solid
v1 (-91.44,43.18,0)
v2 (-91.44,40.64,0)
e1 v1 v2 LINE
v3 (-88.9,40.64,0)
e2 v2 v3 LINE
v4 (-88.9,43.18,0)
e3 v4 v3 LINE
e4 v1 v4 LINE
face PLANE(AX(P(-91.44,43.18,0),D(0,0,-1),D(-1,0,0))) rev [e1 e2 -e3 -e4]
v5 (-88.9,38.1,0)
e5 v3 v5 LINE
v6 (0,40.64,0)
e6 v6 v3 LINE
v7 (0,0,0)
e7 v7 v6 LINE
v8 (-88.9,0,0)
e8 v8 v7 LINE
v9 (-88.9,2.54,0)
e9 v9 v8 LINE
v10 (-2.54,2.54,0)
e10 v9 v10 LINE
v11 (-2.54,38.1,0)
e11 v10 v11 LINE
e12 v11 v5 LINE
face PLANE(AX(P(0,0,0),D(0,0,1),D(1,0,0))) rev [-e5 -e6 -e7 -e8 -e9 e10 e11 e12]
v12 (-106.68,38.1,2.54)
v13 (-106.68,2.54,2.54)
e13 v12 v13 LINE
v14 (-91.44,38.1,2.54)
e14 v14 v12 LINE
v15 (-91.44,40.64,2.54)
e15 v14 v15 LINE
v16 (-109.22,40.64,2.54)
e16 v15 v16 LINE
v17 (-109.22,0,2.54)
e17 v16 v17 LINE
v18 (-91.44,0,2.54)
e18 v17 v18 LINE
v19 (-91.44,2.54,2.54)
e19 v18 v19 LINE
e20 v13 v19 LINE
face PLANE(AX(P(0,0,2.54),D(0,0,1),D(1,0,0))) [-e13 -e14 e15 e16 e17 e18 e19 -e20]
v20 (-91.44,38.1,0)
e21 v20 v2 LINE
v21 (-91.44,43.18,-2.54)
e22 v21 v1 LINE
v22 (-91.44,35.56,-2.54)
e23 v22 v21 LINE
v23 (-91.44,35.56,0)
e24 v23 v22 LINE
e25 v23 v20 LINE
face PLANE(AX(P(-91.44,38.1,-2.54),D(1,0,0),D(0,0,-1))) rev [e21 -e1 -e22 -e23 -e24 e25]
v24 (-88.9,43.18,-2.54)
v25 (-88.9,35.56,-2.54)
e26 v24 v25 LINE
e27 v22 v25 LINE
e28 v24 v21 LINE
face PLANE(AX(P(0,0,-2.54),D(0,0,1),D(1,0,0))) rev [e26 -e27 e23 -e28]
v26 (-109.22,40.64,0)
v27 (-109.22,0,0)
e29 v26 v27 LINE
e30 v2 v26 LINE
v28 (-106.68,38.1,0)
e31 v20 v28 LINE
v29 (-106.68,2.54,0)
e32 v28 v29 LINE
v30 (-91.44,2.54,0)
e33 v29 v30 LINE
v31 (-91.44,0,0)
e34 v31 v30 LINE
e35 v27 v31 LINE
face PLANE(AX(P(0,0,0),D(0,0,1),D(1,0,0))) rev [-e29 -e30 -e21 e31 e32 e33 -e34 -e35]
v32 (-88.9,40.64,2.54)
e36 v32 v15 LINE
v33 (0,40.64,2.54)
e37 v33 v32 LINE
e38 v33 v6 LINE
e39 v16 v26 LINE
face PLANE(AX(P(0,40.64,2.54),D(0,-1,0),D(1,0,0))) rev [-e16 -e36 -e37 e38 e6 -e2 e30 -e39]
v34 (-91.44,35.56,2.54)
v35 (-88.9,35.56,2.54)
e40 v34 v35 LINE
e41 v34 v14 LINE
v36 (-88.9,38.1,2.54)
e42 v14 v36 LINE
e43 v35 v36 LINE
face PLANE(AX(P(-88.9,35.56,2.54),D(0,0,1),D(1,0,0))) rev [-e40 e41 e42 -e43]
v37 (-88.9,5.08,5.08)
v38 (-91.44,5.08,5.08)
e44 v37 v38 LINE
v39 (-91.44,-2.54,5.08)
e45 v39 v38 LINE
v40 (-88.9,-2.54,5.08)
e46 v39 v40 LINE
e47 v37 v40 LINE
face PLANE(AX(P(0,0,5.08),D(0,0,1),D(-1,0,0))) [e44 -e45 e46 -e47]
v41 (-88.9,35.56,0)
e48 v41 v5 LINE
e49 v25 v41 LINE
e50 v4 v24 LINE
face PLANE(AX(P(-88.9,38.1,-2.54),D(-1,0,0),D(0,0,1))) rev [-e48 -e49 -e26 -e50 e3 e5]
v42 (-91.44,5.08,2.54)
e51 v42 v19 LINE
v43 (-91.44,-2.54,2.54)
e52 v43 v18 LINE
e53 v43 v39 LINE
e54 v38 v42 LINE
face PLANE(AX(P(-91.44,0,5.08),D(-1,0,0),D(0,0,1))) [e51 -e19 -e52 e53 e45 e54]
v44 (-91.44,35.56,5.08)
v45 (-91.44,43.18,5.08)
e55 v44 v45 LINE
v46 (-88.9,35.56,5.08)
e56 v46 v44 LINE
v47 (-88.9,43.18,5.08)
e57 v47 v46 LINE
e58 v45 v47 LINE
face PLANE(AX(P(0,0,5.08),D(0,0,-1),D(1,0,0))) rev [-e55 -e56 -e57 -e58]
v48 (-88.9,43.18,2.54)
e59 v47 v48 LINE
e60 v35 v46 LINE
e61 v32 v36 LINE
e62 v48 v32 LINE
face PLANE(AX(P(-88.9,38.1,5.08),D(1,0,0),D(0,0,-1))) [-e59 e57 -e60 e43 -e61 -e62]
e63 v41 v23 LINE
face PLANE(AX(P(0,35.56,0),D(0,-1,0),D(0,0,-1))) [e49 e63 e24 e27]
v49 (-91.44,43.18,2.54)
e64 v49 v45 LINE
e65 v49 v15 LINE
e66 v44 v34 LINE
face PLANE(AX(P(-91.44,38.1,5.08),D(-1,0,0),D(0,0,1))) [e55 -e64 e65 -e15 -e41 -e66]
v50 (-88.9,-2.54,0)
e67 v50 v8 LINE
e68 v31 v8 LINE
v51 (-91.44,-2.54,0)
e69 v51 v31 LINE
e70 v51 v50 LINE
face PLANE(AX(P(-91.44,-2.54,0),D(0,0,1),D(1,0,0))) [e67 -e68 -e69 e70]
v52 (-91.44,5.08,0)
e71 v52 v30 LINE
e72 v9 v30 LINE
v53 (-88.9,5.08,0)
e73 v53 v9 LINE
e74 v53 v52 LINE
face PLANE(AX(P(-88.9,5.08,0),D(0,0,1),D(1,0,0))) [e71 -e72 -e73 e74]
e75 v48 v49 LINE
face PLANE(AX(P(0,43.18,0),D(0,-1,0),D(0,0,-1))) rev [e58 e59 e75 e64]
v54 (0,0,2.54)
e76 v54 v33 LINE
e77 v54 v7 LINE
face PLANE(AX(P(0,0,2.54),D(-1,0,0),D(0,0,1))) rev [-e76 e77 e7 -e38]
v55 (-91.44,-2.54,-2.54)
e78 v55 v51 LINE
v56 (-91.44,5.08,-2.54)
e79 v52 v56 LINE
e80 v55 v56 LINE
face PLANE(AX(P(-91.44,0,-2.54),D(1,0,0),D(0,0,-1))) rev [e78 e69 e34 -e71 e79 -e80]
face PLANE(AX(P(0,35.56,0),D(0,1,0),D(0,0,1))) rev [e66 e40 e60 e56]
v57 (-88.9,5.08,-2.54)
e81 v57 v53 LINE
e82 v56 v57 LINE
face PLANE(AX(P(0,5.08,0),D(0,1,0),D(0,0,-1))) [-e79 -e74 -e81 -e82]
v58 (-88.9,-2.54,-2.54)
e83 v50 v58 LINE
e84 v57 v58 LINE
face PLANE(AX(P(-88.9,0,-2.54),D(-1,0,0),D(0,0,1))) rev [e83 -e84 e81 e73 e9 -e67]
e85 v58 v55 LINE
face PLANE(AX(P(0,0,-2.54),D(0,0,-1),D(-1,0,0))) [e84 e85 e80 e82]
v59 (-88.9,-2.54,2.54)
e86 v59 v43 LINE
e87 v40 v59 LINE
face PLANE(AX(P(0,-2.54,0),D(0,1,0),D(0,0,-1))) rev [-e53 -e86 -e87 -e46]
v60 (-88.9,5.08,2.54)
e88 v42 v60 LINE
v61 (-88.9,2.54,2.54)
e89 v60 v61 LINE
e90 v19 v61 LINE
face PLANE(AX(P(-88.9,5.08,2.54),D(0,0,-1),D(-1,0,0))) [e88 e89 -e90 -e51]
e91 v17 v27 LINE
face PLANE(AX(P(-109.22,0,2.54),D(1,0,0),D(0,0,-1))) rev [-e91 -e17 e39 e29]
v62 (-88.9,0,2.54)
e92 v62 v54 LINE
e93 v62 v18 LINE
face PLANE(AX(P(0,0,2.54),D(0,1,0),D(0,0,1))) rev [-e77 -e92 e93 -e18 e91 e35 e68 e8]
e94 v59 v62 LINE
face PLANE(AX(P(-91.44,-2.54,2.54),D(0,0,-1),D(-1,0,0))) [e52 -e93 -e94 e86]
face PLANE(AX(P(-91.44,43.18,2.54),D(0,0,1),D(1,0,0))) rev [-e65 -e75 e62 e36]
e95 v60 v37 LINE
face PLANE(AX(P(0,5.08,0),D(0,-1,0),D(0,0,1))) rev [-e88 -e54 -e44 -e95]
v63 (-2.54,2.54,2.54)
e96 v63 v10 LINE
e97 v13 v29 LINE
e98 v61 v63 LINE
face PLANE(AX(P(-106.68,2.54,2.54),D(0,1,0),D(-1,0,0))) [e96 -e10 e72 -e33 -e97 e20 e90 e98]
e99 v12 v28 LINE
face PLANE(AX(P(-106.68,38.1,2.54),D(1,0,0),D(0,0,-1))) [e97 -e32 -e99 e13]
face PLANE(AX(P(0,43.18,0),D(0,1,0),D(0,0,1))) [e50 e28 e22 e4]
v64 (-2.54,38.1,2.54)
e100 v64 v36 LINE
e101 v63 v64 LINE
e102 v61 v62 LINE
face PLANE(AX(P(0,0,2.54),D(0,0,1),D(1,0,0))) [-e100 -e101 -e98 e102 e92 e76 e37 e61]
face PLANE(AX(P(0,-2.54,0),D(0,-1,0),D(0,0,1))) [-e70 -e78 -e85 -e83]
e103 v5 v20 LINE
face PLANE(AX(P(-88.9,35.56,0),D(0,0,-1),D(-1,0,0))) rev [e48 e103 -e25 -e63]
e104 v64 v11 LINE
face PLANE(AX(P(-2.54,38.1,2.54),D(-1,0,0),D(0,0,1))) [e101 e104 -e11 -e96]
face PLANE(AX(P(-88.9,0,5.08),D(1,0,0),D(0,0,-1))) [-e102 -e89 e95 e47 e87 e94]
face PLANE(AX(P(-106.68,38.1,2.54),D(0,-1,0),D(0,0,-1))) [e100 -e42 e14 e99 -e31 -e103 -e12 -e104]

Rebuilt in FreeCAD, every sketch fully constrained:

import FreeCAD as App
import Part
import Sketcher
from FreeCAD import Vector
Q = App.Units.Quantity

doc = App.newDocument("Part")
body = doc.addObject("PartDesign::Body", "Body")

# Sketch on XY plane
sketch1 = doc.addObject("Sketcher::SketchObject", "Sketch")
body.addObject(sketch1)
sketch1.AttachmentSupport = (doc.XY_Plane, [""])
sketch1.MapMode = "FlatFace"
sketch1.addGeometry(Part.LineSegment(Vector(-109.22, 40.64, 0), Vector(-109.22, 0, 0)), False)
sketch1.addGeometry(Part.LineSegment(Vector(-109.22, 0, 0), Vector(0, 0, 0)), False)
sketch1.addGeometry(Part.LineSegment(Vector(0, 0, 0), Vector(0, 40.64, 0)), False)
sketch1.addGeometry(Part.LineSegment(Vector(0, 40.64, 0), Vector(-109.22, 40.64, 0)), False)
sketch1.addGeometry(Part.LineSegment(Vector(-2.54, 2.54, 0), Vector(-106.68, 2.54, 0)), False)
sketch1.addGeometry(Part.LineSegment(Vector(-106.68, 2.54, 0), Vector(-106.68, 38.1, 0)), False)
sketch1.addGeometry(Part.LineSegment(Vector(-106.68, 38.1, 0), Vector(-2.54, 38.1, 0)), False)
sketch1.addGeometry(Part.LineSegment(Vector(-2.54, 38.1, 0), Vector(-2.54, 2.54, 0)), False)
sketch1.addConstraint(Sketcher.Constraint("Coincident", 0, 2, 1, 1))
sketch1.addConstraint(Sketcher.Constraint("Coincident", 1, 2, 2, 1))
sketch1.addConstraint(Sketcher.Constraint("Coincident", 2, 2, 3, 1))
sketch1.addConstraint(Sketcher.Constraint("Coincident", 3, 2, 0, 1))
sketch1.addConstraint(Sketcher.Constraint("Coincident", 4, 2, 5, 1))
sketch1.addConstraint(Sketcher.Constraint("Coincident", 5, 2, 6, 1))
sketch1.addConstraint(Sketcher.Constraint("Coincident", 6, 2, 7, 1))
sketch1.addConstraint(Sketcher.Constraint("Coincident", 7, 2, 4, 1))
sketch1.addConstraint(Sketcher.Constraint("Vertical", 0))
sketch1.addConstraint(Sketcher.Constraint("Horizontal", 1))
sketch1.addConstraint(Sketcher.Constraint("Vertical", 2))
sketch1.addConstraint(Sketcher.Constraint("Horizontal", 3))
sketch1.addConstraint(Sketcher.Constraint("Horizontal", 4))
sketch1.addConstraint(Sketcher.Constraint("Vertical", 5))
sketch1.addConstraint(Sketcher.Constraint("Horizontal", 6))
sketch1.addConstraint(Sketcher.Constraint("Vertical", 7))
sketch1.addConstraint(Sketcher.Constraint("Coincident", 1, 2, -1, 1))
sketch1.addConstraint(Sketcher.Constraint("DistanceX", 1, 1, 1, 2, Q("4.3 in")))
sketch1.addConstraint(Sketcher.Constraint("DistanceX", 4, 2, 4, 1, Q("4.1 in")))
sketch1.addConstraint(Sketcher.Constraint("DistanceY", 0, 2, 0, 1, Q("1.6 in")))
sketch1.addConstraint(Sketcher.Constraint("DistanceY", 5, 1, 5, 2, Q("1.4 in")))
sketch1.addConstraint(Sketcher.Constraint("DistanceX", 4, 2, -1, 1, Q("4.2 in")))
sketch1.addConstraint(Sketcher.Constraint("DistanceY", -1, 1, 4, 2, Q("0.1 in")))
pad1 = doc.addObject("PartDesign::Pad", "Pad")
body.addObject(pad1)
pad1.Profile = sketch1
pad1.Length = Q("0.1 in")

# Sketch on XY plane
sketch2 = doc.addObject("Sketcher::SketchObject", "Sketch001")
body.addObject(sketch2)
sketch2.AttachmentSupport = (doc.XY_Plane, [""])
sketch2.MapMode = "FlatFace"
sketch2.addGeometry(Part.LineSegment(Vector(-88.9, 40.64, 0), Vector(-88.9, 38.1, 0)), False)
sketch2.addGeometry(Part.LineSegment(Vector(-88.9, 38.1, 0), Vector(-91.44, 38.1, 0)), False)
sketch2.addGeometry(Part.LineSegment(Vector(-91.44, 38.1, 0), Vector(-91.44, 40.64, 0)), False)
sketch2.addGeometry(Part.LineSegment(Vector(-91.44, 40.64, 0), Vector(-88.9, 40.64, 0)), False)
sketch2.addGeometry(Part.LineSegment(Vector(-88.9, 2.54, 0), Vector(-88.9, 0, 0)), False)
sketch2.addGeometry(Part.LineSegment(Vector(-88.9, 0, 0), Vector(-91.44, 0, 0)), False)
sketch2.addGeometry(Part.LineSegment(Vector(-91.44, 0, 0), Vector(-91.44, 2.54, 0)), False)
sketch2.addGeometry(Part.LineSegment(Vector(-91.44, 2.54, 0), Vector(-88.9, 2.54, 0)), False)
sketch2.addConstraint(Sketcher.Constraint("Coincident", 0, 2, 1, 1))
sketch2.addConstraint(Sketcher.Constraint("Coincident", 1, 2, 2, 1))
sketch2.addConstraint(Sketcher.Constraint("Coincident", 2, 2, 3, 1))
sketch2.addConstraint(Sketcher.Constraint("Coincident", 3, 2, 0, 1))
sketch2.addConstraint(Sketcher.Constraint("Coincident", 4, 2, 5, 1))
sketch2.addConstraint(Sketcher.Constraint("Coincident", 5, 2, 6, 1))
sketch2.addConstraint(Sketcher.Constraint("Coincident", 6, 2, 7, 1))
sketch2.addConstraint(Sketcher.Constraint("Coincident", 7, 2, 4, 1))
sketch2.addConstraint(Sketcher.Constraint("Vertical", 0))
sketch2.addConstraint(Sketcher.Constraint("Horizontal", 1))
sketch2.addConstraint(Sketcher.Constraint("Vertical", 2))
sketch2.addConstraint(Sketcher.Constraint("Horizontal", 3))
sketch2.addConstraint(Sketcher.Constraint("Vertical", 4))
sketch2.addConstraint(Sketcher.Constraint("Horizontal", 5))
sketch2.addConstraint(Sketcher.Constraint("Vertical", 6))
sketch2.addConstraint(Sketcher.Constraint("Horizontal", 7))
sketch2.addConstraint(Sketcher.Constraint("PointOnObject", 4, 2, -1))
sketch2.addConstraint(Sketcher.Constraint("Vertical", 3, 2, 4, 2))
sketch2.addConstraint(Sketcher.Constraint("Vertical", 2, 2, 5, 2))
sketch2.addConstraint(Sketcher.Constraint("Equal", 7, 0))
sketch2.addConstraint(Sketcher.Constraint("Equal", 2, 4))
sketch2.addConstraint(Sketcher.Constraint("DistanceX", 1, 2, 1, 1, Q("0.1 in")))
sketch2.addConstraint(Sketcher.Constraint("DistanceX", 0, 2, -1, 1, Q("3.5 in")))
sketch2.addConstraint(Sketcher.Constraint("DistanceY", -1, 1, 0, 2, Q("1.5 in")))
pad2 = doc.addObject("PartDesign::Pad", "Pad001")
body.addObject(pad2)
pad2.Profile = sketch2
pad2.Length = Q("0.1 in")
pad2.Reversed = True
doc.recompute()

datumplane = doc.addObject("PartDesign::Plane", "DatumPlane")
body.addObject(datumplane)
datumplane.AttachmentSupport = (doc.XY_Plane, [""])
datumplane.MapMode = "FlatFace"
datumplane.AttachmentOffset = App.Placement(Vector(0, 0, 0.05 * 25.4), App.Rotation())
mirrored = doc.addObject("PartDesign::Mirrored", "Mirrored")
body.addObject(mirrored)
mirrored.Originals = [pad2]
mirrored.MirrorPlane = (datumplane, [""])
body.Tip = mirrored

# Sketch on XZ plane
sketch3 = doc.addObject("Sketcher::SketchObject", "Sketch002")
body.addObject(sketch3)
sketch3.AttachmentSupport = (doc.XZ_Plane, [""])
sketch3.MapMode = "FlatFace"
sketch3.AttachmentOffset = App.Placement(Vector(0, 0, -1.6 * 25.4), App.Rotation())
sketch3.addGeometry(Part.LineSegment(Vector(-91.44, -2.54, 0), Vector(-91.44, 0, 0)), False)
sketch3.addGeometry(Part.LineSegment(Vector(-91.44, 0, 0), Vector(-88.9, 0, 0)), False)
sketch3.addGeometry(Part.LineSegment(Vector(-88.9, 0, 0), Vector(-88.9, -2.54, 0)), False)
sketch3.addGeometry(Part.LineSegment(Vector(-88.9, -2.54, 0), Vector(-91.44, -2.54, 0)), False)
sketch3.addGeometry(Part.LineSegment(Vector(-91.44, 2.54, 0), Vector(-91.44, 5.08, 0)), False)
sketch3.addGeometry(Part.LineSegment(Vector(-91.44, 5.08, 0), Vector(-88.9, 5.08, 0)), False)
sketch3.addGeometry(Part.LineSegment(Vector(-88.9, 5.08, 0), Vector(-88.9, 2.54, 0)), False)
sketch3.addGeometry(Part.LineSegment(Vector(-88.9, 2.54, 0), Vector(-91.44, 2.54, 0)), False)
sketch3.addConstraint(Sketcher.Constraint("Coincident", 0, 2, 1, 1))
sketch3.addConstraint(Sketcher.Constraint("Coincident", 1, 2, 2, 1))
sketch3.addConstraint(Sketcher.Constraint("Coincident", 2, 2, 3, 1))
sketch3.addConstraint(Sketcher.Constraint("Coincident", 3, 2, 0, 1))
sketch3.addConstraint(Sketcher.Constraint("Coincident", 4, 2, 5, 1))
sketch3.addConstraint(Sketcher.Constraint("Coincident", 5, 2, 6, 1))
sketch3.addConstraint(Sketcher.Constraint("Coincident", 6, 2, 7, 1))
sketch3.addConstraint(Sketcher.Constraint("Coincident", 7, 2, 4, 1))
sketch3.addConstraint(Sketcher.Constraint("Vertical", 0))
sketch3.addConstraint(Sketcher.Constraint("Horizontal", 1))
sketch3.addConstraint(Sketcher.Constraint("Vertical", 2))
sketch3.addConstraint(Sketcher.Constraint("Horizontal", 3))
sketch3.addConstraint(Sketcher.Constraint("Vertical", 4))
sketch3.addConstraint(Sketcher.Constraint("Horizontal", 5))
sketch3.addConstraint(Sketcher.Constraint("Vertical", 6))
sketch3.addConstraint(Sketcher.Constraint("Horizontal", 7))
sketch3.addConstraint(Sketcher.Constraint("Symmetric", 2, 2, 6, 2, -1))
sketch3.addConstraint(Sketcher.Constraint("PointOnObject", 0, 2, -1))
sketch3.addConstraint(Sketcher.Constraint("Vertical", 3, 2, 4, 2))
sketch3.addConstraint(Sketcher.Constraint("Equal", 7, 0))
sketch3.addConstraint(Sketcher.Constraint("Equal", 2, 4))
sketch3.addConstraint(Sketcher.Constraint("DistanceX", 1, 1, 1, 2, Q("0.1 in")))
sketch3.addConstraint(Sketcher.Constraint("DistanceX", 0, 2, -1, 1, Q("3.6 in")))
pad3 = doc.addObject("PartDesign::Pad", "Pad002")
body.addObject(pad3)
pad3.Profile = sketch3
pad3.Length = Q("0.1 in")
pad3.Reversed = True

# Sketch on XZ plane
sketch4 = doc.addObject("Sketcher::SketchObject", "Sketch003")
body.addObject(sketch4)
sketch4.AttachmentSupport = (doc.XZ_Plane, [""])
sketch4.MapMode = "FlatFace"
sketch4.AttachmentOffset = App.Placement(Vector(0, 0, -1.5 * 25.4), App.Rotation())
sketch4.addGeometry(Part.LineSegment(Vector(-88.9, -2.54, 0), Vector(-88.9, 0, 0)), False)
sketch4.addGeometry(Part.LineSegment(Vector(-88.9, 0, 0), Vector(-91.44, 0, 0)), False)
sketch4.addGeometry(Part.LineSegment(Vector(-91.44, 0, 0), Vector(-91.44, -2.54, 0)), False)
sketch4.addGeometry(Part.LineSegment(Vector(-91.44, -2.54, 0), Vector(-88.9, -2.54, 0)), False)
sketch4.addGeometry(Part.LineSegment(Vector(-88.9, 2.54, 0), Vector(-88.9, 5.08, 0)), False)
sketch4.addGeometry(Part.LineSegment(Vector(-88.9, 5.08, 0), Vector(-91.44, 5.08, 0)), False)
sketch4.addGeometry(Part.LineSegment(Vector(-91.44, 5.08, 0), Vector(-91.44, 2.54, 0)), False)
sketch4.addGeometry(Part.LineSegment(Vector(-91.44, 2.54, 0), Vector(-88.9, 2.54, 0)), False)
sketch4.addConstraint(Sketcher.Constraint("Coincident", 0, 2, 1, 1))
sketch4.addConstraint(Sketcher.Constraint("Coincident", 1, 2, 2, 1))
sketch4.addConstraint(Sketcher.Constraint("Coincident", 2, 2, 3, 1))
sketch4.addConstraint(Sketcher.Constraint("Coincident", 3, 2, 0, 1))
sketch4.addConstraint(Sketcher.Constraint("Coincident", 4, 2, 5, 1))
sketch4.addConstraint(Sketcher.Constraint("Coincident", 5, 2, 6, 1))
sketch4.addConstraint(Sketcher.Constraint("Coincident", 6, 2, 7, 1))
sketch4.addConstraint(Sketcher.Constraint("Coincident", 7, 2, 4, 1))
sketch4.addConstraint(Sketcher.Constraint("Vertical", 0))
sketch4.addConstraint(Sketcher.Constraint("Horizontal", 1))
sketch4.addConstraint(Sketcher.Constraint("Vertical", 2))
sketch4.addConstraint(Sketcher.Constraint("Horizontal", 3))
sketch4.addConstraint(Sketcher.Constraint("Vertical", 4))
sketch4.addConstraint(Sketcher.Constraint("Horizontal", 5))
sketch4.addConstraint(Sketcher.Constraint("Vertical", 6))
sketch4.addConstraint(Sketcher.Constraint("Horizontal", 7))
sketch4.addConstraint(Sketcher.Constraint("Symmetric", 2, 2, 6, 2, -1))
sketch4.addConstraint(Sketcher.Constraint("PointOnObject", 0, 2, -1))
sketch4.addConstraint(Sketcher.Constraint("Vertical", 3, 2, 4, 2))
sketch4.addConstraint(Sketcher.Constraint("Equal", 7, 0))
sketch4.addConstraint(Sketcher.Constraint("Equal", 2, 4))
sketch4.addConstraint(Sketcher.Constraint("DistanceX", 1, 2, 1, 1, Q("0.1 in")))
sketch4.addConstraint(Sketcher.Constraint("DistanceX", 0, 2, -1, 1, Q("3.5 in")))
pad4 = doc.addObject("PartDesign::Pad", "Pad003")
body.addObject(pad4)
pad4.Profile = sketch4
pad4.Length = Q("0.1 in")
doc.recompute()

datumplane2 = doc.addObject("PartDesign::Plane", "DatumPlane001")
body.addObject(datumplane2)
datumplane2.AttachmentSupport = (doc.XZ_Plane, [""])
datumplane2.MapMode = "FlatFace"
datumplane2.AttachmentOffset = App.Placement(Vector(0, 0, -0.8 * 25.4), App.Rotation())
mirrored2 = doc.addObject("PartDesign::Mirrored", "Mirrored001")
body.addObject(mirrored2)
mirrored2.Originals = [pad3, pad4]
mirrored2.MirrorPlane = (datumplane2, [""])
body.Tip = mirrored2

doc.recompute()
